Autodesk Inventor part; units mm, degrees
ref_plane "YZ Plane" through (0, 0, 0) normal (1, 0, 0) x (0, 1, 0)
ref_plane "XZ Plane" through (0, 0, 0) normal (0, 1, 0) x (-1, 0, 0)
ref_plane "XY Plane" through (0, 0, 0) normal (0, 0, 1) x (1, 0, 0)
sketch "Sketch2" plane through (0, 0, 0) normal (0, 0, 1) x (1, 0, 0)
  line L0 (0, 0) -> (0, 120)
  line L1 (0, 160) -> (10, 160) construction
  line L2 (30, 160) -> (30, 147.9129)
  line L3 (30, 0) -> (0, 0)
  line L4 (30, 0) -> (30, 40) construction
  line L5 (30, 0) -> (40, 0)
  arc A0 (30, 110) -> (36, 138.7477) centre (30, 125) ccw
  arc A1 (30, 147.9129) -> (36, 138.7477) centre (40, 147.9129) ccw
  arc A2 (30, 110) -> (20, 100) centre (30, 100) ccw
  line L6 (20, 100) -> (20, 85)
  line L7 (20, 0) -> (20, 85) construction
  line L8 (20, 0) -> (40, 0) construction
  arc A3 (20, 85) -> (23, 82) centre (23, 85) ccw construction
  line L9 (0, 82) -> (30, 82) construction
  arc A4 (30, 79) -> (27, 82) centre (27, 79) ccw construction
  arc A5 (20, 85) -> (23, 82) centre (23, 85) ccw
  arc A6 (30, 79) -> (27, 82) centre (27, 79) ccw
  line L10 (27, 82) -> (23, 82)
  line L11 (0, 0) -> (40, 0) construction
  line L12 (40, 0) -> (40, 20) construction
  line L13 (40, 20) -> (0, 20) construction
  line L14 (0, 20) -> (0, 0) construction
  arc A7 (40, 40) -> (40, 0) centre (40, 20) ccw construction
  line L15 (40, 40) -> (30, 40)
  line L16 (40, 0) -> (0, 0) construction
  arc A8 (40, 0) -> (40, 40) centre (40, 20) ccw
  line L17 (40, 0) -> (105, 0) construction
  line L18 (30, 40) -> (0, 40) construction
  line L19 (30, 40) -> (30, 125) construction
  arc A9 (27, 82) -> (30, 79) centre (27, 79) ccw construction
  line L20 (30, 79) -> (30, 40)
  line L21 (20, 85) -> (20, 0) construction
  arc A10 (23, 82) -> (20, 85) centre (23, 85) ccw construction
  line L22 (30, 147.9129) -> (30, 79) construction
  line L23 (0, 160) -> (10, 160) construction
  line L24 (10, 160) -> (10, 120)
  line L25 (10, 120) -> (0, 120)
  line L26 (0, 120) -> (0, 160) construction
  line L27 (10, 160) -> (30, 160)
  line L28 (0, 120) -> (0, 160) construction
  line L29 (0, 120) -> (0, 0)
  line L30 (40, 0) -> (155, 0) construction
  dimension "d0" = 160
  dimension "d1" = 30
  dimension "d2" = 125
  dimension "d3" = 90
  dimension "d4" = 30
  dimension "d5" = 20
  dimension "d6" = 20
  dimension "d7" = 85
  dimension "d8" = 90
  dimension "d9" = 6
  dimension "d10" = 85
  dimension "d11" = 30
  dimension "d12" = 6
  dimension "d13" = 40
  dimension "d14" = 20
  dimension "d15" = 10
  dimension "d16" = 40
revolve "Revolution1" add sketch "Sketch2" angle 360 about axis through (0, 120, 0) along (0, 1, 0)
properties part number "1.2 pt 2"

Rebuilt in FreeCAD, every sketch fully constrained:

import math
import FreeCAD as App
import Part
import Sketcher

V = App.Vector

doc = App.newDocument("Part")
body = doc.addObject("PartDesign::Body", "Body")

sketch1 = doc.addObject("Sketcher::SketchObject", "Sketch")
body.addObject(sketch1)
sketch1.AttachmentSupport = (doc.XY_Plane, [""])
sketch1.MapMode = "FlatFace"
sketch1.addGeometry(Part.LineSegment(V(0, 120, 0), V(0, 0, 0)), False)
sketch1.addGeometry(Part.LineSegment(V(0, 0, 0), V(40, 0, 0)), False)
sketch1.addGeometry(Part.ArcOfCircle(Part.Circle(V(40, 20, 0), V(0, 0, 1), 20), math.radians(-90), math.radians(90)), False)
sketch1.addGeometry(Part.LineSegment(V(40, 40, 0), V(30, 40, 0)), False)
sketch1.addGeometry(Part.LineSegment(V(30, 40, 0), V(30, 79, 0)), False)
sketch1.addGeometry(Part.ArcOfCircle(Part.Circle(V(27, 79, 0), V(0, 0, 1), 3), math.radians(0), math.radians(90)), False)
sketch1.addGeometry(Part.LineSegment(V(27, 82, 0), V(23, 82, 0)), False)
sketch1.addGeometry(Part.ArcOfCircle(Part.Circle(V(23, 85, 0), V(0, 0, 1), 3), math.radians(180), math.radians(270)), False)
sketch1.addGeometry(Part.LineSegment(V(20, 85, 0), V(20, 100, 0)), False)
sketch1.addGeometry(Part.ArcOfCircle(Part.Circle(V(30, 100, 0), V(0, 0, 1), 10), math.radians(90), math.radians(180)), False)
sketch1.addGeometry(Part.ArcOfCircle(Part.Circle(V(30, 125, 0), V(0, 0, 1), 15), math.radians(-90), math.radians(66.42178)), False)
sketch1.addGeometry(Part.ArcOfCircle(Part.Circle(V(40, 147.9129, 0), V(0, 0, 1), 10), math.radians(180), math.radians(246.421933)), False)
sketch1.addGeometry(Part.LineSegment(V(30, 147.9129, 0), V(30, 160, 0)), False)
sketch1.addGeometry(Part.LineSegment(V(30, 160, 0), V(10, 160, 0)), False)
sketch1.addGeometry(Part.LineSegment(V(10, 160, 0), V(10, 120, 0)), False)
sketch1.addGeometry(Part.LineSegment(V(10, 120, 0), V(0, 120, 0)), False)
sketch1.addConstraint(Sketcher.Constraint("Coincident", 0, 2, 1, 1))
sketch1.addConstraint(Sketcher.Constraint("Tangent", 1, 2, 2, 1))
sketch1.addConstraint(Sketcher.Constraint("Tangent", 2, 2, 3, 1))
sketch1.addConstraint(Sketcher.Constraint("Coincident", 3, 2, 4, 1))
sketch1.addConstraint(Sketcher.Constraint("Tangent", 4, 2, 5, 1))
sketch1.addConstraint(Sketcher.Constraint("Tangent", 5, 2, 6, 1))
sketch1.addConstraint(Sketcher.Constraint("Tangent", 6, 2, 7, 2))
sketch1.addConstraint(Sketcher.Constraint("Tangent", 7, 1, 8, 1))
sketch1.addConstraint(Sketcher.Constraint("Tangent", 8, 2, 9, 2))
sketch1.addConstraint(Sketcher.Constraint("Tangent", 9, 1, 10, 1))
sketch1.addConstraint(Sketcher.Constraint("Tangent", 10, 2, 11, 2))
sketch1.addConstraint(Sketcher.Constraint("Tangent", 11, 1, 12, 1))
sketch1.addConstraint(Sketcher.Constraint("Coincident", 12, 2, 13, 1))
sketch1.addConstraint(Sketcher.Constraint("Coincident", 13, 2, 14, 1))
sketch1.addConstraint(Sketcher.Constraint("Coincident", 14, 2, 15, 1))
sketch1.addConstraint(Sketcher.Constraint("Coincident", 15, 2, 0, 1))
sketch1.addConstraint(Sketcher.Constraint("Vertical", 0))
sketch1.addConstraint(Sketcher.Constraint("Horizontal", 1))
sketch1.addConstraint(Sketcher.Constraint("Horizontal", 3))
sketch1.addConstraint(Sketcher.Constraint("Vertical", 4))
sketch1.addConstraint(Sketcher.Constraint("Horizontal", 6))
sketch1.addConstraint(Sketcher.Constraint("Vertical", 8))
sketch1.addConstraint(Sketcher.Constraint("Vertical", 12))
sketch1.addConstraint(Sketcher.Constraint("Horizontal", 13))
sketch1.addConstraint(Sketcher.Constraint("Vertical", 14))
sketch1.addConstraint(Sketcher.Constraint("Horizontal", 15))
sketch1.addConstraint(Sketcher.Constraint("Coincident", 0, 2, -1, 1))
sketch1.addConstraint(Sketcher.Constraint("Equal", 5, 7))
sketch1.addConstraint(Sketcher.Constraint("Equal", 9, 11))
sketch1.addConstraint(Sketcher.Constraint("Vertical", 9, 3, 10, 3))
sketch1.addConstraint(Sketcher.Constraint("Vertical", 2, 3, 11, 3))
sketch1.addConstraint(Sketcher.Constraint("Vertical", 10, 3, 3, 2))
sketch1.addConstraint(Sketcher.Constraint("Vertical", 9, 1, 11, 1))
sketch1.addConstraint(Sketcher.Constraint("Equal", 3, 15))
sketch1.addConstraint(Sketcher.Constraint("Equal", 1, 14))
sketch1.addConstraint(Sketcher.Constraint("Radius", 2, 20.0))
sketch1.addConstraint(Sketcher.Constraint("Radius", 5, 3.0))
sketch1.addConstraint(Sketcher.Constraint("Radius", 9, 10.0))
sketch1.addConstraint(Sketcher.Constraint("Radius", 10, 15.0))
sketch1.addConstraint(Sketcher.Constraint("DistanceX", 1, 1, 1, 2, 40.0))
sketch1.addConstraint(Sketcher.Constraint("DistanceY", -1, 1, 7, 3, 85.0))
sketch1.addConstraint(Sketcher.Constraint("DistanceY", -1, 1, 10, 3, 125.0))
sketch1.addConstraint(Sketcher.Constraint("DistanceY", -1, 1, 12, 2, 160.0))
revolution = doc.addObject("PartDesign::Revolution", "Revolution")
body.addObject(revolution)
revolution.Profile = sketch1
revolution.ReferenceAxis = (sketch1, ["V_Axis"])
revolution.Angle = 360

doc.recompute()
